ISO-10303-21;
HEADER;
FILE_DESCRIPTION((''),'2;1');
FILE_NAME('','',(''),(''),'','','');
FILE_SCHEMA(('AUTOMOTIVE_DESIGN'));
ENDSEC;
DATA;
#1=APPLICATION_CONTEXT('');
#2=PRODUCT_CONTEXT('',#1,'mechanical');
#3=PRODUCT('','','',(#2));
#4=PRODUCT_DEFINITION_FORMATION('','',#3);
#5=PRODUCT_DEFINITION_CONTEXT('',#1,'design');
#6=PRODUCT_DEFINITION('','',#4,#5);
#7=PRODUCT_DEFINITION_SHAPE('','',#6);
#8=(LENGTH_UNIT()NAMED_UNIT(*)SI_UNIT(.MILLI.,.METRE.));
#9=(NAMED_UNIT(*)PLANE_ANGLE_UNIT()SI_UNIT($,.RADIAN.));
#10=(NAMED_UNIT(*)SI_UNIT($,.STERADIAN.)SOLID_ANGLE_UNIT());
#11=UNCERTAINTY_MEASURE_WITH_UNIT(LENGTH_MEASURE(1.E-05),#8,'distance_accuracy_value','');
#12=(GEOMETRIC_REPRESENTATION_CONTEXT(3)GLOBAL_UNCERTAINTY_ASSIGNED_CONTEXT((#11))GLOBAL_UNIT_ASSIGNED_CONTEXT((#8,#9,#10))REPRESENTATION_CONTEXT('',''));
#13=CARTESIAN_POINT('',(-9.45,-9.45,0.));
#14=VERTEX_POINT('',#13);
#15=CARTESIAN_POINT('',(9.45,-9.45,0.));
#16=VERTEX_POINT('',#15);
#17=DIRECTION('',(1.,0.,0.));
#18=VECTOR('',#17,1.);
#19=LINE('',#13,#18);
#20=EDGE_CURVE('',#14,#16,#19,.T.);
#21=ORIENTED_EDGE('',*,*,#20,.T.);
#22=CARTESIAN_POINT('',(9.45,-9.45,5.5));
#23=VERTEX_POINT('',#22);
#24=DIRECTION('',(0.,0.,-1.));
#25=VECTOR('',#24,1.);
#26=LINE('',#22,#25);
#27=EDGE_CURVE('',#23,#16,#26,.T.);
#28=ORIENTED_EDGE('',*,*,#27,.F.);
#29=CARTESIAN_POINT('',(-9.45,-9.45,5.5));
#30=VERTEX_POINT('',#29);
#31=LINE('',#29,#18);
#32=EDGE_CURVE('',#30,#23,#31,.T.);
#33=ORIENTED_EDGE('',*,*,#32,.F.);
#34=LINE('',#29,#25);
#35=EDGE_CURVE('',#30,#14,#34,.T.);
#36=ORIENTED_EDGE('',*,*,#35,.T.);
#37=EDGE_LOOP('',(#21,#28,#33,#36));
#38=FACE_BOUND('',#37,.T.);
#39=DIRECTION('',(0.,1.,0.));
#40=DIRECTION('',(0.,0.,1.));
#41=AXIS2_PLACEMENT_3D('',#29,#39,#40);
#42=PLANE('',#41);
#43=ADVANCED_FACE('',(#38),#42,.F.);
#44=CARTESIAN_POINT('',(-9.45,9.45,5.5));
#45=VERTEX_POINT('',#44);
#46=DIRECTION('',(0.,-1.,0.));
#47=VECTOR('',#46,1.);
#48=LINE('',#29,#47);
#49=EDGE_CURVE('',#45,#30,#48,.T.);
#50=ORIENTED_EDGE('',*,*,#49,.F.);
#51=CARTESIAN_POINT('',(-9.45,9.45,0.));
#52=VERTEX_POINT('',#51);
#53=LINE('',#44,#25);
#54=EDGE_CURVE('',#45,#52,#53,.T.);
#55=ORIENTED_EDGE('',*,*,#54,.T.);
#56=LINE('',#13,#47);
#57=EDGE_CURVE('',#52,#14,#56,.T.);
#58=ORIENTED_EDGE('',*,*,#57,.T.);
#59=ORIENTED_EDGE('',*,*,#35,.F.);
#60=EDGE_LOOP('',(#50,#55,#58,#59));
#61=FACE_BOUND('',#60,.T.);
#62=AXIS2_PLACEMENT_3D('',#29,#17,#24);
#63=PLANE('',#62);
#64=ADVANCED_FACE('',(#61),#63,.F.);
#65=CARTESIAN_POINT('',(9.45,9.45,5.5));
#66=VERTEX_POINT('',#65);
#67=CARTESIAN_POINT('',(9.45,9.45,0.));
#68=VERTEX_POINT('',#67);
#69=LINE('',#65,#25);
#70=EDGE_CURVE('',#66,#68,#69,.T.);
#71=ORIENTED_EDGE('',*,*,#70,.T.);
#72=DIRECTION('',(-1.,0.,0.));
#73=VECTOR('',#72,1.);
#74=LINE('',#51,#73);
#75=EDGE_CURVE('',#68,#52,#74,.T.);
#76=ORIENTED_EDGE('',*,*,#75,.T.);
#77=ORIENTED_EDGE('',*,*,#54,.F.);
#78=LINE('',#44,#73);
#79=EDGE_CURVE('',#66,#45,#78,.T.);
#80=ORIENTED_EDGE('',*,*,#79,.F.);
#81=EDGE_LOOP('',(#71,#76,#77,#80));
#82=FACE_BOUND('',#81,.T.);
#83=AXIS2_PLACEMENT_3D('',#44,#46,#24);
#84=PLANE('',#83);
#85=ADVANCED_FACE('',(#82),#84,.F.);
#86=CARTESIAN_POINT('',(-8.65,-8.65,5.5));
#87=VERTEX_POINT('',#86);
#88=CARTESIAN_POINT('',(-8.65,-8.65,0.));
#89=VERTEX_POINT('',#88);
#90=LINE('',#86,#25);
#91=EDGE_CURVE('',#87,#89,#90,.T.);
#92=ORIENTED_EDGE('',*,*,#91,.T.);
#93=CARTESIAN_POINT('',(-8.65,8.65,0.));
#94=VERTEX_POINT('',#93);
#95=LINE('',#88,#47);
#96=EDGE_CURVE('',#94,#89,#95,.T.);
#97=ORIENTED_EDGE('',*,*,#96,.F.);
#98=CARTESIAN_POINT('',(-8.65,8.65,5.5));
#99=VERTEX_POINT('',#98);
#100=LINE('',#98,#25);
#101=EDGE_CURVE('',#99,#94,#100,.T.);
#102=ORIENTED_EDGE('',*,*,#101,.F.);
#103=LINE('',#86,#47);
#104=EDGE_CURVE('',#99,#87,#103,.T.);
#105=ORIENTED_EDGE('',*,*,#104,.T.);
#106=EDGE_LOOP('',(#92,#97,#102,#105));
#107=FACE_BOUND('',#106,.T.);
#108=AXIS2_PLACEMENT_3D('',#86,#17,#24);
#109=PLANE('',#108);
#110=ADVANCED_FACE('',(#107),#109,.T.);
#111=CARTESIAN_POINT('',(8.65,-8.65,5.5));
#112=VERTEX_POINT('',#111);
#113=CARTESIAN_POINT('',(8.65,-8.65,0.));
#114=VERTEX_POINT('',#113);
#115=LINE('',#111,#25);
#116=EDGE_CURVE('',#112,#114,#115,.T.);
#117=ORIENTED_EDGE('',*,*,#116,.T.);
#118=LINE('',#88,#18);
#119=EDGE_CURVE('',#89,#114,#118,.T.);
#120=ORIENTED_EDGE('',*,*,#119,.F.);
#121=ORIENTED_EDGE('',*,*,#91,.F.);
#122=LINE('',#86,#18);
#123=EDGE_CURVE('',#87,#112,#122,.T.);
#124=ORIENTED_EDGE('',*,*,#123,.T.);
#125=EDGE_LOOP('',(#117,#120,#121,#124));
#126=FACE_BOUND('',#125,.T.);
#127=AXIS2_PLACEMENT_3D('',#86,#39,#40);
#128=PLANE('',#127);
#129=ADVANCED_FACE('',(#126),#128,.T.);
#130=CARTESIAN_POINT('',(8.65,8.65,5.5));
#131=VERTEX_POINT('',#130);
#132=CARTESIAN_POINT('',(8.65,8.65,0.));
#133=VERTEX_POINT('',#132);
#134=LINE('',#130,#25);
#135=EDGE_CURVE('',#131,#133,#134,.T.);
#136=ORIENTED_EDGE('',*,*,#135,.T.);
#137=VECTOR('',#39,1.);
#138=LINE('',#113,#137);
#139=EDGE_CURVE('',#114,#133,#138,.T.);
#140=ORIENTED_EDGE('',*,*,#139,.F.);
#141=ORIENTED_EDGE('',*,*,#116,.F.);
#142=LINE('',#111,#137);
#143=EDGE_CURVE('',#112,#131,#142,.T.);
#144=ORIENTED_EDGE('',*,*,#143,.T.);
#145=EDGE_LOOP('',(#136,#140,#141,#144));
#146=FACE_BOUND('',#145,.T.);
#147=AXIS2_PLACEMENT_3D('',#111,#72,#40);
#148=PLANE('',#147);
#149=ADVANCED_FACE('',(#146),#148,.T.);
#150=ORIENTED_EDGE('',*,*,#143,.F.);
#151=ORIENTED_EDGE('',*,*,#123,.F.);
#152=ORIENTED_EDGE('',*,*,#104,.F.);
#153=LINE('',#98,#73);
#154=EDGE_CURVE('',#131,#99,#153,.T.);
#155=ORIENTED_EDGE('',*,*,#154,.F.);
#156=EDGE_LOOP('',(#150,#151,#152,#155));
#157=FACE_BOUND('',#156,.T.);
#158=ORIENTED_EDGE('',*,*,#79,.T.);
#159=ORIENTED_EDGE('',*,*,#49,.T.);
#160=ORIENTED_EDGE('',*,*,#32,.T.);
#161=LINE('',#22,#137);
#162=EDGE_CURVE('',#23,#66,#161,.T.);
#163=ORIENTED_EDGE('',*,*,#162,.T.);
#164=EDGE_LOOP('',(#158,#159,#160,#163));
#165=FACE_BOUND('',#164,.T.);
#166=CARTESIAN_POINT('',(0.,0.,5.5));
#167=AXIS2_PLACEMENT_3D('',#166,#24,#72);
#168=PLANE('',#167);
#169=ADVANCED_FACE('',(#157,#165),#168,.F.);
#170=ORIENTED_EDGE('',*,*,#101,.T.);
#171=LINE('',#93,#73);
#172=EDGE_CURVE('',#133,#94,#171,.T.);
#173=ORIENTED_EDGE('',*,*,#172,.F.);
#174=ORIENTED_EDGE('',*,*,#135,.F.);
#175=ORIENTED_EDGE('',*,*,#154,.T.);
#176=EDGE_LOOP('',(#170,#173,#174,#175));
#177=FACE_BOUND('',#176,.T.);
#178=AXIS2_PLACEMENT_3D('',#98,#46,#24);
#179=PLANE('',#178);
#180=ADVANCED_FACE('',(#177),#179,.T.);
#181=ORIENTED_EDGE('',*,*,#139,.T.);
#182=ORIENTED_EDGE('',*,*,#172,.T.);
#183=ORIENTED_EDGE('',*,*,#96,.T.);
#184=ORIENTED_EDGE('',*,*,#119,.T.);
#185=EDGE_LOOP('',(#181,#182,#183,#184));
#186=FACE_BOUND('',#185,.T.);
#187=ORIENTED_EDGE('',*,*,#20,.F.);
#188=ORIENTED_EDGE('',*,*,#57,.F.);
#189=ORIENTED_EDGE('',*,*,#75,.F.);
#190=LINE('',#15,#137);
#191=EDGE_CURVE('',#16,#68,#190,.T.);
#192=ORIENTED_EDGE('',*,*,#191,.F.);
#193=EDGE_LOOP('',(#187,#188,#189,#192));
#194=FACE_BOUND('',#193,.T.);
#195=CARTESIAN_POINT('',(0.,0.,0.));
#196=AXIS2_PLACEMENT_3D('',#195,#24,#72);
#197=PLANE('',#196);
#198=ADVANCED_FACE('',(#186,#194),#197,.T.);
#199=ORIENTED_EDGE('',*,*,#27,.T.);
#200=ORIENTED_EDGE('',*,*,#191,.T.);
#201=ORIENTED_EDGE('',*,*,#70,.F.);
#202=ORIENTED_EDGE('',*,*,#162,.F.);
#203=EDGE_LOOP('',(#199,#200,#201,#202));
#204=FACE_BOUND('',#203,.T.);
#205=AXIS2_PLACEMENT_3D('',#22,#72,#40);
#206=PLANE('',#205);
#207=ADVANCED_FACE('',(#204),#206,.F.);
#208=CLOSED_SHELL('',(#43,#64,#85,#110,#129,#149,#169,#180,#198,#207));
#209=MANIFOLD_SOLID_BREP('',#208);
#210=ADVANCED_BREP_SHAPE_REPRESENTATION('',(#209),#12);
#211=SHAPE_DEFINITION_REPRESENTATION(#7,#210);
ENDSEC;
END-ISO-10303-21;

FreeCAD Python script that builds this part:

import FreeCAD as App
import Part
import Sketcher
from FreeCAD import Vector

doc = App.newDocument("Part")
body = doc.addObject("PartDesign::Body", "Body")

sketch1 = body.newObject("Sketcher::SketchObject", "Sketch")
sketch1.AttachmentSupport = (doc.getObject("XY_Plane"), [""])
sketch1.MapMode = "FlatFace"
sketch1.addGeometry(Part.LineSegment(Vector(-9, 9, 0), Vector(-9, -9, 0)), False)
sketch1.addGeometry(Part.LineSegment(Vector(-9, -9, 0), Vector(9, -9, 0)), False)
sketch1.addGeometry(Part.LineSegment(Vector(9, -9, 0), Vector(9, 9, 0)), False)
sketch1.addGeometry(Part.LineSegment(Vector(9, 9, 0), Vector(-9, 9, 0)), False)
sketch1.addGeometry(Part.LineSegment(Vector(9, -9, 0), Vector(-9, -9, 0)), False)
sketch1.addGeometry(Part.LineSegment(Vector(-9, -9, 0), Vector(-9, 9, 0)), False)
sketch1.addGeometry(Part.LineSegment(Vector(-9, 9, 0), Vector(9, 9, 0)), False)
sketch1.addGeometry(Part.LineSegment(Vector(9, 9, 0), Vector(9, -9, 0)), False)
sketch1.addConstraint(Sketcher.Constraint("Coincident", 0, 2, 1, 1))
sketch1.addConstraint(Sketcher.Constraint("Coincident", 1, 2, 2, 1))
sketch1.addConstraint(Sketcher.Constraint("Coincident", 2, 2, 3, 1))
sketch1.addConstraint(Sketcher.Constraint("Coincident", 3, 2, 0, 1))
sketch1.addConstraint(Sketcher.Constraint("Coincident", 4, 2, 5, 1))
sketch1.addConstraint(Sketcher.Constraint("Coincident", 5, 2, 6, 1))
sketch1.addConstraint(Sketcher.Constraint("Coincident", 6, 2, 7, 1))
sketch1.addConstraint(Sketcher.Constraint("Coincident", 7, 2, 4, 1))
sketch1.addConstraint(Sketcher.Constraint("Vertical", 0))
sketch1.addConstraint(Sketcher.Constraint("Horizontal", 1))
sketch1.addConstraint(Sketcher.Constraint("Vertical", 2))
sketch1.addConstraint(Sketcher.Constraint("Horizontal", 3))
sketch1.addConstraint(Sketcher.Constraint("Horizontal", 4))
sketch1.addConstraint(Sketcher.Constraint("Vertical", 5))
sketch1.addConstraint(Sketcher.Constraint("Horizontal", 6))
sketch1.addConstraint(Sketcher.Constraint("Vertical", 7))
sketch1.addConstraint(Sketcher.Constraint("Symmetric", 0, 2, 2, 2, -1, 1))
sketch1.addConstraint(Sketcher.Constraint("Symmetric", 4, 2, 6, 2, -1, 1))
sketch1.addConstraint(Sketcher.Constraint("Equal", 3, 0))
sketch1.addConstraint(Sketcher.Constraint("Equal", 6, 5))
sketch1.addConstraint(Sketcher.Constraint("DistanceX", 1, 1, 1, 2, 18.9))
sketch1.addConstraint(Sketcher.Constraint("DistanceX", 4, 2, 4, 1, 17.3))
pad1 = body.newObject("PartDesign::Pad", "Pad")
pad1.Profile = sketch1
pad1.Length = 5.5

doc.recompute()
